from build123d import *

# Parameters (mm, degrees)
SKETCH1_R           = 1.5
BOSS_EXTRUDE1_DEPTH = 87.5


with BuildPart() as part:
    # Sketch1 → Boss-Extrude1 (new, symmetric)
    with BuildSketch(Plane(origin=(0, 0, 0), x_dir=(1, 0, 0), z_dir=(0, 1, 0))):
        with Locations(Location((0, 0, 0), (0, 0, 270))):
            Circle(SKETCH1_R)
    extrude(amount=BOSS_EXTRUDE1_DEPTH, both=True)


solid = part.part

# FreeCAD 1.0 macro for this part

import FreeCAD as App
import Part
import Sketcher
from FreeCAD import Vector
Q = App.Units.Quantity

doc = App.newDocument("Part")
params = doc.addObject("Spreadsheet::Sheet", "Params")
for row, (alias, value) in enumerate([
    ("sketch1_diameter", "3 mm"),
    ("pad1_length", "175 mm"),
], start=1):
    params.set(f"A{row}", alias)
    params.set(f"B{row}", "=" + value)
    params.setAlias(f"B{row}", alias)

body = doc.addObject("PartDesign::Body", "Body")

# Sketch on XZ plane
sketch1 = doc.addObject("Sketcher::SketchObject", "Sketch")
body.addObject(sketch1)
sketch1.AttachmentSupport = (doc.XZ_Plane, [""])
sketch1.MapMode = "FlatFace"
sketch1.addGeometry(Part.Circle(Vector(0, 0, 0), Vector(0, 0, 1), 1.5), False)
sketch1.addConstraint([
    Sketcher.Constraint("Coincident", 0, 3, -1, 1),
    Sketcher.Constraint("Diameter", 0, Q("3 mm")),
])
sketch1.setExpression("Constraints[1]", "Params.sketch1_diameter")
pad1 = doc.addObject("PartDesign::Pad", "Pad")
body.addObject(pad1)
pad1.Profile = sketch1
pad1.setExpression("Length", "Params.pad1_length")
pad1.Midplane = True

doc.recompute()
